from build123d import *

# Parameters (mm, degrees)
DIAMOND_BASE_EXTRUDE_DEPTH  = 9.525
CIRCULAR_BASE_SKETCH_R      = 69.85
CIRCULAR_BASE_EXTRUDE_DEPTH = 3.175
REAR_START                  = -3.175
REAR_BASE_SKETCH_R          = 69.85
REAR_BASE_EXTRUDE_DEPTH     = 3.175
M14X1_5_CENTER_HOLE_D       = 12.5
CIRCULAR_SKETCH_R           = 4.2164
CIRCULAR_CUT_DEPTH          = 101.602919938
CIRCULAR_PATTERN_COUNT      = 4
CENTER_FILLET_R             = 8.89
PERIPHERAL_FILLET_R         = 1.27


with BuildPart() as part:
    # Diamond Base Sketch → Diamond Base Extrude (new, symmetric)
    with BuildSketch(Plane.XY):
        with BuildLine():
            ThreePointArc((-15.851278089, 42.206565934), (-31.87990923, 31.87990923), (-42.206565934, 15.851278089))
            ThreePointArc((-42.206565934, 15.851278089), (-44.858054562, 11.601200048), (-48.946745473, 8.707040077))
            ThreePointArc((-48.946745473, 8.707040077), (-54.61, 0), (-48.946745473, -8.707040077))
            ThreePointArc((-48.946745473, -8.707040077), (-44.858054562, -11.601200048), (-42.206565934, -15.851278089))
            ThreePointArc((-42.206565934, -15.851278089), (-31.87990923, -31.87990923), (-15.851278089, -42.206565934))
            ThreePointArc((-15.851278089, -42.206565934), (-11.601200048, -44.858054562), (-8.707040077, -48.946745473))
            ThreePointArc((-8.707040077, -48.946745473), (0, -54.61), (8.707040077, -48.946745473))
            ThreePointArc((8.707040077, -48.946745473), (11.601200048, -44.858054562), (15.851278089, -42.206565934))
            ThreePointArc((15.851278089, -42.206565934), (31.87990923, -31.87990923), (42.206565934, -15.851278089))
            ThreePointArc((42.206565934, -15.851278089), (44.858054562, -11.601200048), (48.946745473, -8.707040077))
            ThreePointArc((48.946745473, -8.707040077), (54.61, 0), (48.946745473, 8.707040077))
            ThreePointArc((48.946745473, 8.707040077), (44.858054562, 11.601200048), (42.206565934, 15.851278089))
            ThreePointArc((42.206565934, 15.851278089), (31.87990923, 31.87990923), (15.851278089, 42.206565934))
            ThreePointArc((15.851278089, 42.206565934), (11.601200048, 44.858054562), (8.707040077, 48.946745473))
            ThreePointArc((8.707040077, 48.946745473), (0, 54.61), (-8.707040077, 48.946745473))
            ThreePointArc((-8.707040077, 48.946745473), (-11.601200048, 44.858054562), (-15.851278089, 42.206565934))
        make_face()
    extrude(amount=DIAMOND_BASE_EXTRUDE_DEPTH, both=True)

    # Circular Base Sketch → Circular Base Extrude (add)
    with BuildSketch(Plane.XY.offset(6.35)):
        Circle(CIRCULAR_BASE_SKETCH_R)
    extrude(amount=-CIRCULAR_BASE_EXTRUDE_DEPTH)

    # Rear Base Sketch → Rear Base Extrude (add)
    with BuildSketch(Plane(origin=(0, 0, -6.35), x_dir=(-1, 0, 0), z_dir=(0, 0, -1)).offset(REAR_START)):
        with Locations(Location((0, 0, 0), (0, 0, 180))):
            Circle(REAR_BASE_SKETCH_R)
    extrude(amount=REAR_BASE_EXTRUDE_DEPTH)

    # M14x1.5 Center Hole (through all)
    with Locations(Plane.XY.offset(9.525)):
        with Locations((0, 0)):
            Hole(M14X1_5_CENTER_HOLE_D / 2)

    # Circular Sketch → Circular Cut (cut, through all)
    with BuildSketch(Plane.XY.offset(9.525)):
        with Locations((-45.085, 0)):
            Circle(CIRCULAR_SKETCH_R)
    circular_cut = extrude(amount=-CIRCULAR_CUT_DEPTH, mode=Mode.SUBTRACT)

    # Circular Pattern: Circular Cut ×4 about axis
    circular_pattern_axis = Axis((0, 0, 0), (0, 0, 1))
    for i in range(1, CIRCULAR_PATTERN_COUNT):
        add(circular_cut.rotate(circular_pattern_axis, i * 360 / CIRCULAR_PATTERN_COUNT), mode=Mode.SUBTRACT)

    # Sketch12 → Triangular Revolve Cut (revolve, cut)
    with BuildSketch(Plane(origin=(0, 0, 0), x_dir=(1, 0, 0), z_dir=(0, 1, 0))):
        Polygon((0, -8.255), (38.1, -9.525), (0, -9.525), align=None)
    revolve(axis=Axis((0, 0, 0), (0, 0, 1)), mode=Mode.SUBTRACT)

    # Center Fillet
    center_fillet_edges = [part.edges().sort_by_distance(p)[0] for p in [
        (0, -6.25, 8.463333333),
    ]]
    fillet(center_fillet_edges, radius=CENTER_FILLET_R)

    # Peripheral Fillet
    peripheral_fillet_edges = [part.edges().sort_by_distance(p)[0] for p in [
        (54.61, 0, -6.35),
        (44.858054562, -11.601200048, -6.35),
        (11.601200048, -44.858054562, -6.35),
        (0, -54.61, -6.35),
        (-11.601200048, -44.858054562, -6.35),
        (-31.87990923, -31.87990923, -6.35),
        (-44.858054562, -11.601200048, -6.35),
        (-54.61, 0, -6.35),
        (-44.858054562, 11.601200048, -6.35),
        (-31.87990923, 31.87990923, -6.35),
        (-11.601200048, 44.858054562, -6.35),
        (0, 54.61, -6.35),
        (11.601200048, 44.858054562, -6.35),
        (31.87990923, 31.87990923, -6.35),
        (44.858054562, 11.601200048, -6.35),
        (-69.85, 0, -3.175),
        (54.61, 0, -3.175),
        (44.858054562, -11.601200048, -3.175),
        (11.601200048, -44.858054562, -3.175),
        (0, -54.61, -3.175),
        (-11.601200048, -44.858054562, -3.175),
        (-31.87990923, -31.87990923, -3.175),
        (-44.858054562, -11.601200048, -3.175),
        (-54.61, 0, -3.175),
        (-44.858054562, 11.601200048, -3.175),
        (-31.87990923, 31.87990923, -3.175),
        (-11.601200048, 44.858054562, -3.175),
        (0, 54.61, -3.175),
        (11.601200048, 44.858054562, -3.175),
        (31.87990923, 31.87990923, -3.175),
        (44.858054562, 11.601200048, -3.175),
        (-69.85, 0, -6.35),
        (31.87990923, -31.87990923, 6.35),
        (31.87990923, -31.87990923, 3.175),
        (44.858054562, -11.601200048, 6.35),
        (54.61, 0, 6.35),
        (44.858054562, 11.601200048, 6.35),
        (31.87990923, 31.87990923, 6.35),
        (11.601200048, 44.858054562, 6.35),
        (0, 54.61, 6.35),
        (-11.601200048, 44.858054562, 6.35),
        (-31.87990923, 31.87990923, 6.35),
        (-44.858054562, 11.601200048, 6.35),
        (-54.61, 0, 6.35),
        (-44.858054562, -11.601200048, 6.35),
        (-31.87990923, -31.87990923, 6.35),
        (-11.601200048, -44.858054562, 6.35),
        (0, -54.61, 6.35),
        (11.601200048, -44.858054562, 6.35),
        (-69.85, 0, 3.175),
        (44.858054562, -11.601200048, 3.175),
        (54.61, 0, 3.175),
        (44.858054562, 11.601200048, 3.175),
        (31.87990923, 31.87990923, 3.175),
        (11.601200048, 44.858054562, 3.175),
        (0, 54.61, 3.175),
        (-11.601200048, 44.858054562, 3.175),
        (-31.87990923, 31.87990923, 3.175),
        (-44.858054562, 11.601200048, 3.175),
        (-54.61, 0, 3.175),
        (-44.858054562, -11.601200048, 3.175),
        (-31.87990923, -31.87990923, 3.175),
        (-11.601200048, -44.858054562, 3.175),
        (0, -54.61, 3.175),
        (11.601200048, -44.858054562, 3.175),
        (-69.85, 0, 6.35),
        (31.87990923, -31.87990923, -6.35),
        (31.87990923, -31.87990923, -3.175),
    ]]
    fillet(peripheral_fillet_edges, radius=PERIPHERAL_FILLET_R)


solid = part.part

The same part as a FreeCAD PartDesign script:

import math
import FreeCAD as App
import Part
import Sketcher
from FreeCAD import Vector
Q = App.Units.Quantity


def edges_at(feature, points):
    """Names of the edges that pass closest to the given points."""
    edges = feature.Shape.Edges
    near = lambda p: min(range(len(edges)), key=lambda i: edges[i].distToShape(Part.Vertex(*p))[0])
    return sorted({f"Edge{near(p) + 1}" for p in points})

doc = App.newDocument("Part")
body = doc.addObject("PartDesign::Body", "Body")

# Sketch on XY plane
sketch1 = body.newObject("Sketcher::SketchObject", "Sketch")
sketch1.AttachmentSupport = (doc.getObject("XY_Plane"), [""])
sketch1.MapMode = "FlatFace"
sketch1.addGeometry(Part.ArcOfCircle(Part.Circle(Vector(0, 0, 0), Vector(0, 0, 1), 45), math.radians(111), math.radians(159)), False)
sketch1.addGeometry(Part.ArcOfCircle(Part.Circle(Vector(-54, 20, 0), Vector(0, 0, 1), 13), math.radians(-66), math.radians(-21)), False)
sketch1.addGeometry(Part.ArcOfCircle(Part.Circle(Vector(-45, 0, 0), Vector(0, 0, 1), 10), math.radians(114), math.radians(246)), False)
sketch1.addGeometry(Part.ArcOfCircle(Part.Circle(Vector(-54, -20, 0), Vector(0, 0, 1), 13), math.radians(21), math.radians(66)), False)
sketch1.addGeometry(Part.ArcOfCircle(Part.Circle(Vector(0, 0, 0), Vector(0, 0, 1), 45), math.radians(-159), math.radians(-111)), False)
sketch1.addGeometry(Part.ArcOfCircle(Part.Circle(Vector(-20, -54, 0), Vector(0, 0, 1), 13), math.radians(24), math.radians(69)), False)
sketch1.addGeometry(Part.ArcOfCircle(Part.Circle(Vector(0, -45, 0), Vector(0, 0, 1), 10), math.radians(-156), math.radians(-24)), False)
sketch1.addGeometry(Part.ArcOfCircle(Part.Circle(Vector(20, -54, 0), Vector(0, 0, 1), 13), math.radians(111), math.radians(156)), False)
sketch1.addGeometry(Part.ArcOfCircle(Part.Circle(Vector(0, 0, 0), Vector(0, 0, 1), 45), math.radians(-69), math.radians(-21)), False)
sketch1.addGeometry(Part.ArcOfCircle(Part.Circle(Vector(54, -20, 0), Vector(0, 0, 1), 13), math.radians(114), math.radians(159)), False)
sketch1.addGeometry(Part.ArcOfCircle(Part.Circle(Vector(45, 0, 0), Vector(0, 0, 1), 10), math.radians(-66), math.radians(66)), False)
sketch1.addGeometry(Part.ArcOfCircle(Part.Circle(Vector(54, 20, 0), Vector(0, 0, 1), 13), math.radians(-159), math.radians(-114)), False)
sketch1.addGeometry(Part.ArcOfCircle(Part.Circle(Vector(0, 0, 0), Vector(0, 0, 1), 45), math.radians(21), math.radians(69)), False)
sketch1.addGeometry(Part.ArcOfCircle(Part.Circle(Vector(20, 54, 0), Vector(0, 0, 1), 13), math.radians(-156), math.radians(-111)), False)
sketch1.addGeometry(Part.ArcOfCircle(Part.Circle(Vector(0, 45, 0), Vector(0, 0, 1), 10), math.radians(24), math.radians(156)), False)
sketch1.addGeometry(Part.ArcOfCircle(Part.Circle(Vector(-20, 54, 0), Vector(0, 0, 1), 13), math.radians(-69), math.radians(-24)), False)
sketch1.addConstraint(Sketcher.Constraint("Tangent", 0, 2, 1, 2))
sketch1.addConstraint(Sketcher.Constraint("Tangent", 1, 1, 2, 1))
sketch1.addConstraint(Sketcher.Constraint("Tangent", 2, 2, 3, 2))
sketch1.addConstraint(Sketcher.Constraint("Tangent", 3, 1, 4, 1))
sketch1.addConstraint(Sketcher.Constraint("Tangent", 4, 2, 5, 2))
sketch1.addConstraint(Sketcher.Constraint("Tangent", 5, 1, 6, 1))
sketch1.addConstraint(Sketcher.Constraint("Tangent", 6, 2, 7, 2))
sketch1.addConstraint(Sketcher.Constraint("Tangent", 7, 1, 8, 1))
sketch1.addConstraint(Sketcher.Constraint("Tangent", 8, 2, 9, 2))
sketch1.addConstraint(Sketcher.Constraint("Tangent", 9, 1, 10, 1))
sketch1.addConstraint(Sketcher.Constraint("Tangent", 10, 2, 11, 2))
sketch1.addConstraint(Sketcher.Constraint("Tangent", 11, 1, 12, 1))
sketch1.addConstraint(Sketcher.Constraint("Tangent", 12, 2, 13, 2))
sketch1.addConstraint(Sketcher.Constraint("Tangent", 13, 1, 14, 1))
sketch1.addConstraint(Sketcher.Constraint("Tangent", 14, 2, 15, 2))
sketch1.addConstraint(Sketcher.Constraint("Tangent", 15, 1, 0, 1))
sketch1.addConstraint(Sketcher.Constraint("Coincident", 0, 3, -1, 1))
sketch1.addConstraint(Sketcher.Constraint("Coincident", 4, 3, -1, 1))
sketch1.addConstraint(Sketcher.Constraint("Coincident", 8, 3, -1, 1))
sketch1.addConstraint(Sketcher.Constraint("Coincident", 12, 3, -1, 1))
sketch1.addConstraint(Sketcher.Constraint("Equal", 1, 3))
sketch1.addConstraint(Sketcher.Constraint("Equal", 0, 4))
sketch1.addConstraint(Sketcher.Constraint("Equal", 3, 5))
sketch1.addConstraint(Sketcher.Constraint("Equal", 2, 6))
sketch1.addConstraint(Sketcher.Constraint("Equal", 5, 7))
sketch1.addConstraint(Sketcher.Constraint("Equal", 4, 8))
sketch1.addConstraint(Sketcher.Constraint("Equal", 7, 9))
sketch1.addConstraint(Sketcher.Constraint("Equal", 6, 10))
sketch1.addConstraint(Sketcher.Constraint("Equal", 9, 11))
sketch1.addConstraint(Sketcher.Constraint("Equal", 8, 12))
sketch1.addConstraint(Sketcher.Constraint("Equal", 11, 13))
sketch1.addConstraint(Sketcher.Constraint("Equal", 10, 14))
sketch1.addConstraint(Sketcher.Constraint("Equal", 13, 15))
sketch1.addConstraint(Sketcher.Constraint("Symmetric", 2, 3, 10, 3, -1, 1))
sketch1.addConstraint(Sketcher.Constraint("Symmetric", 6, 3, 14, 3, -1, 1))
sketch1.addConstraint(Sketcher.Constraint("PointOnObject", 2, 3, -1))
sketch1.addConstraint(Sketcher.Constraint("PointOnObject", 6, 3, -2))
sketch1.addConstraint(Sketcher.Constraint("Radius", 1, Q("0.5 in")))
sketch1.addConstraint(Sketcher.Constraint("Radius", 0, Q("1.775 in")))
sketch1.addConstraint(Sketcher.Constraint("Radius", 2, Q("0.375 in")))
sketch1.addConstraint(Sketcher.Constraint("DistanceX", 2, 3, -1, 1, Q("1.775 in")))
sketch1.addConstraint(Sketcher.Constraint("DistanceY", 6, 3, -1, 1, Q("1.775 in")))
pad1 = body.newObject("PartDesign::Pad", "Pad")
pad1.Profile = sketch1
pad1.Length = Q("0.75 in")
pad1.Midplane = True

# Sketch on XY plane
sketch2 = body.newObject("Sketcher::SketchObject", "Sketch001")
sketch2.AttachmentSupport = (doc.getObject("XY_Plane"), [""])
sketch2.MapMode = "FlatFace"
sketch2.AttachmentOffset = App.Placement(Vector(0, 0, 0.25 * 25.4), App.Rotation())
sketch2.addGeometry(Part.Circle(Vector(0, 0, 0), Vector(0, 0, 1), 70), False)
sketch2.addConstraint(Sketcher.Constraint("Coincident", 0, 3, -1, 1))
sketch2.addConstraint(Sketcher.Constraint("Diameter", 0, Q("5.5 in")))
pad2 = body.newObject("PartDesign::Pad", "Pad001")
pad2.Profile = sketch2
pad2.Length = Q("0.125 in")
pad2.Reversed = True

# Sketch on XY plane
sketch3 = body.newObject("Sketcher::SketchObject", "Sketch002")
sketch3.AttachmentSupport = (doc.getObject("XY_Plane"), [""])
sketch3.MapMode = "FlatFace"
sketch3.AttachmentOffset = App.Placement(Vector(0, 0, -0.125 * 25.4), App.Rotation())
sketch3.addGeometry(Part.Circle(Vector(0, 0, 0), Vector(0, 0, 1), 70), False)
sketch3.addConstraint(Sketcher.Constraint("Coincident", 0, 3, -1, 1))
sketch3.addConstraint(Sketcher.Constraint("Diameter", 0, Q("5.5 in")))
pad3 = body.newObject("PartDesign::Pad", "Pad002")
pad3.Profile = sketch3
pad3.Length = Q("0.125 in")
pad3.Reversed = True

# Sketch on XY plane
sketch4 = body.newObject("Sketcher::SketchObject", "Sketch003")
sketch4.AttachmentSupport = (doc.getObject("XY_Plane"), [""])
sketch4.MapMode = "FlatFace"
sketch4.AttachmentOffset = App.Placement(Vector(0, 0, 0.375 * 25.4), App.Rotation())
sketch4.addGeometry(Part.Circle(Vector(0, 0, 0), Vector(0, 0, 1), 6), False)
sketch4.addConstraint(Sketcher.Constraint("Coincident", 0, 3, -1, 1))
sketch4.addConstraint(Sketcher.Constraint("Diameter", 0, 12.5))
doc.recompute()
hole = body.newObject("PartDesign::Hole", "Hole")
hole.Profile = sketch4
hole.ThreadType = "None"
hole.Diameter = 12.5
hole.DepthType = "ThroughAll"

# Sketch on XY plane
sketch5 = body.newObject("Sketcher::SketchObject", "Sketch004")
sketch5.AttachmentSupport = (doc.getObject("XY_Plane"), [""])
sketch5.MapMode = "FlatFace"
sketch5.AttachmentOffset = App.Placement(Vector(0, 0, 0.375 * 25.4), App.Rotation())
sketch5.addGeometry(Part.Circle(Vector(-45.1, 0, 0), Vector(0, 0, 1), 4.2), False)
sketch5.addConstraint(Sketcher.Constraint("PointOnObject", 0, 3, -1))
sketch5.addConstraint(Sketcher.Constraint("Diameter", 0, Q("0.332 in")))
sketch5.addConstraint(Sketcher.Constraint("DistanceX", 0, 3, -1, 1, Q("1.775 in")))
pocket1 = body.newObject("PartDesign::Pocket", "Pocket")
pocket1.Profile = sketch5
pocket1.Type = "ThroughAll"
doc.recompute()

polarpattern = body.newObject("PartDesign::PolarPattern", "PolarPattern")
polarpattern.Originals = [pocket1]
polarpattern.Axis = (doc.getObject("Z_Axis"), [""])
polarpattern.Angle = 360
polarpattern.Occurrences = 4
body.Tip = polarpattern

# Sketch on XZ plane
sketch6 = body.newObject("Sketcher::SketchObject", "Sketch005")
sketch6.AttachmentSupport = (doc.getObject("XZ_Plane"), [""])
sketch6.MapMode = "FlatFace"
sketch6.addGeometry(Part.LineSegment(Vector(38.1, 9.5, 0), Vector(0, 8.3, 0)), False)
sketch6.addGeometry(Part.LineSegment(Vector(0, 8.3, 0), Vector(0, 9.5, 0)), False)
sketch6.addGeometry(Part.LineSegment(Vector(0, 9.5, 0), Vector(38.1, 9.5, 0)), False)
sketch6.addConstraint(Sketcher.Constraint("Coincident", 0, 2, 1, 1))
sketch6.addConstraint(Sketcher.Constraint("Coincident", 1, 2, 2, 1))
sketch6.addConstraint(Sketcher.Constraint("Coincident", 2, 2, 0, 1))
sketch6.addConstraint(Sketcher.Constraint("Vertical", 1))
sketch6.addConstraint(Sketcher.Constraint("Horizontal", 2))
sketch6.addConstraint(Sketcher.Constraint("PointOnObject", 0, 2, -2))
sketch6.addConstraint(Sketcher.Constraint("DistanceX", 2, 1, 2, 2, Q("1.5 in")))
sketch6.addConstraint(Sketcher.Constraint("DistanceY", 1, 1, 1, 2, Q("0.05 in")))
sketch6.addConstraint(Sketcher.Constraint("DistanceY", -1, 1, 0, 2, Q("0.325 in")))
groove = body.newObject("PartDesign::Groove", "Groove")
groove.Profile = sketch6
groove.ReferenceAxis = (sketch6, ["V_Axis"])
groove.Angle = 360
doc.recompute()

fillet = body.newObject("PartDesign::Fillet", "Fillet")
fillet.Base = (groove, edges_at(groove, [(0, -6.25, 8.463)]))
fillet.Radius = Q("0.35 in")
doc.recompute()

fillet2 = body.newObject("PartDesign::Fillet", "Fillet001")
fillet2.Base = (fillet, edges_at(fillet, [
    (54.61, 0, -6.35),
    (44.858, -11.601, -6.35),
    (11.601, -44.858, -6.35),
    (0, -54.61, -6.35),
    (-11.601, -44.858, -6.35),
    (-31.88, -31.88, -6.35),
    (-44.858, -11.601, -6.35),
    (-54.61, 0, -6.35),
    (-44.858, 11.601, -6.35),
    (-31.88, 31.88, -6.35),
    (-11.601, 44.858, -6.35),
    (0, 54.61, -6.35),
    (11.601, 44.858, -6.35),
    (31.88, 31.88, -6.35),
    (44.858, 11.601, -6.35),
    (-69.85, 0, -3.175),
    (54.61, 0, -3.175),
    (44.858, -11.601, -3.175),
    (11.601, -44.858, -3.175),
    (0, -54.61, -3.175),
    (-11.601, -44.858, -3.175),
    (-31.88, -31.88, -3.175),
    (-44.858, -11.601, -3.175),
    (-54.61, 0, -3.175),
    (-44.858, 11.601, -3.175),
    (-31.88, 31.88, -3.175),
    (-11.601, 44.858, -3.175),
    (0, 54.61, -3.175),
    (11.601, 44.858, -3.175),
    (31.88, 31.88, -3.175),
    (44.858, 11.601, -3.175),
    (-69.85, 0, -6.35),
    (31.88, -31.88, 6.35),
    (31.88, -31.88, 3.175),
    (44.858, -11.601, 6.35),
    (54.61, 0, 6.35),
    (44.858, 11.601, 6.35),
    (31.88, 31.88, 6.35),
    (11.601, 44.858, 6.35),
    (0, 54.61, 6.35),
    (-11.601, 44.858, 6.35),
    (-31.88, 31.88, 6.35),
    (-44.858, 11.601, 6.35),
    (-54.61, 0, 6.35),
    (-44.858, -11.601, 6.35),
    (-31.88, -31.88, 6.35),
    (-11.601, -44.858, 6.35),
    (0, -54.61, 6.35),
    (11.601, -44.858, 6.35),
    (-69.85, 0, 3.175),
    (44.858, -11.601, 3.175),
    (54.61, 0, 3.175),
    (44.858, 11.601, 3.175),
    (31.88, 31.88, 3.175),
    (11.601, 44.858, 3.175),
    (0, 54.61, 3.175),
    (-11.601, 44.858, 3.175),
    (-31.88, 31.88, 3.175),
    (-44.858, 11.601, 3.175),
    (-54.61, 0, 3.175),
    (-44.858, -11.601, 3.175),
    (-31.88, -31.88, 3.175),
    (-11.601, -44.858, 3.175),
    (0, -54.61, 3.175),
    (11.601, -44.858, 3.175),
    (-69.85, 0, 6.35),
    (31.88, -31.88, -6.35),
    (31.88, -31.88, -3.175),
]))
fillet2.Radius = Q("0.05 in")

doc.recompute()
